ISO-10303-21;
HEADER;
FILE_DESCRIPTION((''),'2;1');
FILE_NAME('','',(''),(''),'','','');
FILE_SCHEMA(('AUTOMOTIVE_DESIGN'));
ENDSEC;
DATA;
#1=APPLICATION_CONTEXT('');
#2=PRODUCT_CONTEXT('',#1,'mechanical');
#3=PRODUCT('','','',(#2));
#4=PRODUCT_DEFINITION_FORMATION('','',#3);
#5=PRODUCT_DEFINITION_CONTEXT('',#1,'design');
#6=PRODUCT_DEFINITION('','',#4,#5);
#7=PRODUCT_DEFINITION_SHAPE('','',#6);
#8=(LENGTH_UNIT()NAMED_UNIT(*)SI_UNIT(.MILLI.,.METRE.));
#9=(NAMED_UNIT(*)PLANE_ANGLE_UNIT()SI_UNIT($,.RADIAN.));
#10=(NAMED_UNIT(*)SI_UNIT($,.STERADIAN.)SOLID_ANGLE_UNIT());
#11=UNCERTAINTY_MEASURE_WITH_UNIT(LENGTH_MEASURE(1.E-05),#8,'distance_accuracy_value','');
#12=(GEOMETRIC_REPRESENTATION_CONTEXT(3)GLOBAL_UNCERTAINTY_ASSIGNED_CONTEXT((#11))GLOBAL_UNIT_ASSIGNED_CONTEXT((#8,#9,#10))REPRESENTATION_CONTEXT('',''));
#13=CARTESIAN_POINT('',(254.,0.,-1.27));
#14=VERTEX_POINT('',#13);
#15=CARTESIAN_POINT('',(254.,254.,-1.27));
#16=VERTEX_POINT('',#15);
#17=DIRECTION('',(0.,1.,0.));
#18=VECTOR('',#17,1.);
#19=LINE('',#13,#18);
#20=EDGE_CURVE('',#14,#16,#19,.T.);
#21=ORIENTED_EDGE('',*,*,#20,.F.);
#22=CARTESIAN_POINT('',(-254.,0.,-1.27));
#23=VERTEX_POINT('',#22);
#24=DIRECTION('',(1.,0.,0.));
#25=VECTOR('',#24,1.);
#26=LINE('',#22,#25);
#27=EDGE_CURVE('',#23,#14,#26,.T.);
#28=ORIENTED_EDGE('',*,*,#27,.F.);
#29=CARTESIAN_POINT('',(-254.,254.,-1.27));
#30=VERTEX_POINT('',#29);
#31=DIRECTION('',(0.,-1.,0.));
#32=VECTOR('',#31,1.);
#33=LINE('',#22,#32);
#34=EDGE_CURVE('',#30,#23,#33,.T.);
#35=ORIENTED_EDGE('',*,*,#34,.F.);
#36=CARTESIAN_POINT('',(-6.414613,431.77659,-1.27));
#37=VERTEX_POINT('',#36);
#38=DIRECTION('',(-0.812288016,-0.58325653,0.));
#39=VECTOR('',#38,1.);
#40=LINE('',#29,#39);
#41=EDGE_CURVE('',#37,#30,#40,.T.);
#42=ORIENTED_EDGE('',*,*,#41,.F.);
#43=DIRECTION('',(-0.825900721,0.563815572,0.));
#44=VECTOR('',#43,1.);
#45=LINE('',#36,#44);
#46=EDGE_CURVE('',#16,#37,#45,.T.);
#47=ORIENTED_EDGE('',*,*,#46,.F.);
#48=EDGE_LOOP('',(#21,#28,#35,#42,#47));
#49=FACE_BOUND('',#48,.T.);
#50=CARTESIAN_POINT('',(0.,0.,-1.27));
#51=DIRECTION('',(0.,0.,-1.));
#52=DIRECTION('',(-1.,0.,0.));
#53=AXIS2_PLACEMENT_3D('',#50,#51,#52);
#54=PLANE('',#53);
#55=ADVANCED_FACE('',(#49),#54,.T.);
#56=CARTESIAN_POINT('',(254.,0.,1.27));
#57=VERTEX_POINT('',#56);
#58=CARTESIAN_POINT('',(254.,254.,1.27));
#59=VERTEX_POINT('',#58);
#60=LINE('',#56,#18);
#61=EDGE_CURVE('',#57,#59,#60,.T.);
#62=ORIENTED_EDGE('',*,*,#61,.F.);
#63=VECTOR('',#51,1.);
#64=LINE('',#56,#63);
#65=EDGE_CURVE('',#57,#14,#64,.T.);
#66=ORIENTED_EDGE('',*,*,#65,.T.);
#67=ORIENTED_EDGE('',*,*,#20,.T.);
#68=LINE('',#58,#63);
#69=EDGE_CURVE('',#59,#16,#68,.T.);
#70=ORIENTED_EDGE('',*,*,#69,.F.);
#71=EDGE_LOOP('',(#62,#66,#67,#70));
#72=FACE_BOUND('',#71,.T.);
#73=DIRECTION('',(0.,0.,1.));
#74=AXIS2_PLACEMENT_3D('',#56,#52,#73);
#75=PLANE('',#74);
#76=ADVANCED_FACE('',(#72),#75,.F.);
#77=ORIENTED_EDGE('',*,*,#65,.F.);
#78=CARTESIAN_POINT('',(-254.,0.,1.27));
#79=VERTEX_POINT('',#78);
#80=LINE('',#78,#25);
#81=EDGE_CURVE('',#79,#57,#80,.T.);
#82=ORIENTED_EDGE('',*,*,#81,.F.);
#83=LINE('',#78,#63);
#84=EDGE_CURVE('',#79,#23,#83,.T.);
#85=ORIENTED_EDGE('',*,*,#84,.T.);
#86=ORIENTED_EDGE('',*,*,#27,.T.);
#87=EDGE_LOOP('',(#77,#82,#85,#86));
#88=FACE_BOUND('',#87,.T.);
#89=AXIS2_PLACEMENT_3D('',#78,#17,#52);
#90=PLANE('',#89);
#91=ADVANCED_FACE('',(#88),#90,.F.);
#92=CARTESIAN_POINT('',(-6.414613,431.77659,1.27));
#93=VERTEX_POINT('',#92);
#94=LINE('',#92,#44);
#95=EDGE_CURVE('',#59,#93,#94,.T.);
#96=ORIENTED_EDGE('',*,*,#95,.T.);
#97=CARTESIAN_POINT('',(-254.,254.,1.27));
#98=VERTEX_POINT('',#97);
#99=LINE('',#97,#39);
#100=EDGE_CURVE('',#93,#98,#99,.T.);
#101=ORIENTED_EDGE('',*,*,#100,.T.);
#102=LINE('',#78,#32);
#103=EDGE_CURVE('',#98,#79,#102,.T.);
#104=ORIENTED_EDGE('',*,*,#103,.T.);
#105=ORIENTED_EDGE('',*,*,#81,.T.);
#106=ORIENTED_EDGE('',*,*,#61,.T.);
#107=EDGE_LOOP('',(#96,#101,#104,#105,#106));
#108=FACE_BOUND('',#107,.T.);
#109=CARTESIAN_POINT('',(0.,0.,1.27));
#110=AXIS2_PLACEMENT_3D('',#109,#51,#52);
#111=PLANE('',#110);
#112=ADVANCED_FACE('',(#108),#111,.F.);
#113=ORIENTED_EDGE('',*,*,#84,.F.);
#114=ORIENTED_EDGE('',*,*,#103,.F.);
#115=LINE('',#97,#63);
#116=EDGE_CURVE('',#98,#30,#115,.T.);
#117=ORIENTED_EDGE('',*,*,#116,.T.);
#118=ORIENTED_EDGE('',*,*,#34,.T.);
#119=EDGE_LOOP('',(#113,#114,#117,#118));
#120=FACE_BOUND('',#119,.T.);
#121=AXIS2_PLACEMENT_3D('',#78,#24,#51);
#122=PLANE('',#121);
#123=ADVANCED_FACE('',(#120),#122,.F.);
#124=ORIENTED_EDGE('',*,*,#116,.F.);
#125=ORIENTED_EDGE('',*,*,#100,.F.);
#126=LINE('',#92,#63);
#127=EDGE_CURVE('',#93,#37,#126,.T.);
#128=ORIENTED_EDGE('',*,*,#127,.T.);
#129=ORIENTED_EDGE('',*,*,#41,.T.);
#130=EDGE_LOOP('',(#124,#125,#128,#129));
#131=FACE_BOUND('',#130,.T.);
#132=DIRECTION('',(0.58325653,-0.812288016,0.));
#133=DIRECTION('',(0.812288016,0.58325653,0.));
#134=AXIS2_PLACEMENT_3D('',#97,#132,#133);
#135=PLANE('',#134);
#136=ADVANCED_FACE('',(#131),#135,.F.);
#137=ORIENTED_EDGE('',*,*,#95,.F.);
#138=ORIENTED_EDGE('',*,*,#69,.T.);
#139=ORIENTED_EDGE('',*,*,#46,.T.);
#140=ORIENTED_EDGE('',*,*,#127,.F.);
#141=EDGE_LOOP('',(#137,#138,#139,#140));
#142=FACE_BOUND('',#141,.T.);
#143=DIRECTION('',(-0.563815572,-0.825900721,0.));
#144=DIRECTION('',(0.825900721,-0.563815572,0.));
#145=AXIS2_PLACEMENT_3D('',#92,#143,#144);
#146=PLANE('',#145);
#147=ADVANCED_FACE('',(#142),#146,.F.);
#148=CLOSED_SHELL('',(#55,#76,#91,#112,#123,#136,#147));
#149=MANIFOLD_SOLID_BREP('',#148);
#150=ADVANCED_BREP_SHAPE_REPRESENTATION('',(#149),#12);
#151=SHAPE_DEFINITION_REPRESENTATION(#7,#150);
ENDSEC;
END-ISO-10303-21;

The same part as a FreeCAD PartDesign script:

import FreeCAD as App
import Part
import Sketcher
Q = App.Units.Quantity


def add_polygon(sketch, points):
    """Adds a closed chain of lines whose ends are joined by coincident constraints."""
    first, n = sketch.GeometryCount, len(points)
    for a, b in zip(points, points[1:] + points[:1]):
        sketch.addGeometry(Part.LineSegment(App.Vector(*a, 0), App.Vector(*b, 0)), False)
    for i in range(n):
        sketch.addConstraint(Sketcher.Constraint("Coincident", first + i, 2, first + (i + 1) % n, 1))

doc = App.newDocument("Part")
params = doc.addObject("Spreadsheet::Sheet", "Params")
for row, (alias, value) in enumerate([
    ("sketch1_width", "20 in"),
    ("sketch1_height", "10 in"),
    ("sketch1_length", "12 in"),
    ("pad1_length", "0.1 in"),
], start=1):
    params.set(f"A{row}", alias)
    params.set(f"B{row}", "=" + value)
    params.setAlias(f"B{row}", alias)

body = doc.addObject("PartDesign::Body", "Body")

# Sketch on XY plane
sketch1 = body.newObject("Sketcher::SketchObject", "Sketch")
sketch1.AttachmentSupport = (doc.getObject("XY_Plane"), [""])
sketch1.MapMode = "FlatFace"
add_polygon(sketch1, [(-254, 0), (254, 0), (254, 254), (-6.414613, 431.77659), (-254, 254)])  # lines 0-4
sketch1.addConstraint([
    Sketcher.Constraint("Horizontal", 0),
    Sketcher.Constraint("Vertical", 1),
    Sketcher.Constraint("Vertical", 4),
    Sketcher.Constraint("Symmetric", 0, 2, 4, 2, -1, 1),
    Sketcher.Constraint("Horizontal", 1, 2, 3, 2),
    Sketcher.Constraint("DistanceX", 0, 1, 0, 2, Q("20 in")),
    Sketcher.Constraint("DistanceY", 1, 1, 1, 2, Q("10 in")),
    Sketcher.Constraint("Distance", 3, Q("12 in")),
    Sketcher.Constraint("DistanceY", -1, 1, 2, 2, Q("431.77659 mm")),
])
sketch1.setExpression("Constraints[10]", "Params.sketch1_width")
sketch1.setExpression("Constraints[11]", "Params.sketch1_height")
sketch1.setExpression("Constraints[12]", "Params.sketch1_length")
pad1 = body.newObject("PartDesign::Pad", "Pad")
pad1.Profile = sketch1
pad1.setExpression("Length", "Params.pad1_length")
pad1.Midplane = True

doc.recompute()
